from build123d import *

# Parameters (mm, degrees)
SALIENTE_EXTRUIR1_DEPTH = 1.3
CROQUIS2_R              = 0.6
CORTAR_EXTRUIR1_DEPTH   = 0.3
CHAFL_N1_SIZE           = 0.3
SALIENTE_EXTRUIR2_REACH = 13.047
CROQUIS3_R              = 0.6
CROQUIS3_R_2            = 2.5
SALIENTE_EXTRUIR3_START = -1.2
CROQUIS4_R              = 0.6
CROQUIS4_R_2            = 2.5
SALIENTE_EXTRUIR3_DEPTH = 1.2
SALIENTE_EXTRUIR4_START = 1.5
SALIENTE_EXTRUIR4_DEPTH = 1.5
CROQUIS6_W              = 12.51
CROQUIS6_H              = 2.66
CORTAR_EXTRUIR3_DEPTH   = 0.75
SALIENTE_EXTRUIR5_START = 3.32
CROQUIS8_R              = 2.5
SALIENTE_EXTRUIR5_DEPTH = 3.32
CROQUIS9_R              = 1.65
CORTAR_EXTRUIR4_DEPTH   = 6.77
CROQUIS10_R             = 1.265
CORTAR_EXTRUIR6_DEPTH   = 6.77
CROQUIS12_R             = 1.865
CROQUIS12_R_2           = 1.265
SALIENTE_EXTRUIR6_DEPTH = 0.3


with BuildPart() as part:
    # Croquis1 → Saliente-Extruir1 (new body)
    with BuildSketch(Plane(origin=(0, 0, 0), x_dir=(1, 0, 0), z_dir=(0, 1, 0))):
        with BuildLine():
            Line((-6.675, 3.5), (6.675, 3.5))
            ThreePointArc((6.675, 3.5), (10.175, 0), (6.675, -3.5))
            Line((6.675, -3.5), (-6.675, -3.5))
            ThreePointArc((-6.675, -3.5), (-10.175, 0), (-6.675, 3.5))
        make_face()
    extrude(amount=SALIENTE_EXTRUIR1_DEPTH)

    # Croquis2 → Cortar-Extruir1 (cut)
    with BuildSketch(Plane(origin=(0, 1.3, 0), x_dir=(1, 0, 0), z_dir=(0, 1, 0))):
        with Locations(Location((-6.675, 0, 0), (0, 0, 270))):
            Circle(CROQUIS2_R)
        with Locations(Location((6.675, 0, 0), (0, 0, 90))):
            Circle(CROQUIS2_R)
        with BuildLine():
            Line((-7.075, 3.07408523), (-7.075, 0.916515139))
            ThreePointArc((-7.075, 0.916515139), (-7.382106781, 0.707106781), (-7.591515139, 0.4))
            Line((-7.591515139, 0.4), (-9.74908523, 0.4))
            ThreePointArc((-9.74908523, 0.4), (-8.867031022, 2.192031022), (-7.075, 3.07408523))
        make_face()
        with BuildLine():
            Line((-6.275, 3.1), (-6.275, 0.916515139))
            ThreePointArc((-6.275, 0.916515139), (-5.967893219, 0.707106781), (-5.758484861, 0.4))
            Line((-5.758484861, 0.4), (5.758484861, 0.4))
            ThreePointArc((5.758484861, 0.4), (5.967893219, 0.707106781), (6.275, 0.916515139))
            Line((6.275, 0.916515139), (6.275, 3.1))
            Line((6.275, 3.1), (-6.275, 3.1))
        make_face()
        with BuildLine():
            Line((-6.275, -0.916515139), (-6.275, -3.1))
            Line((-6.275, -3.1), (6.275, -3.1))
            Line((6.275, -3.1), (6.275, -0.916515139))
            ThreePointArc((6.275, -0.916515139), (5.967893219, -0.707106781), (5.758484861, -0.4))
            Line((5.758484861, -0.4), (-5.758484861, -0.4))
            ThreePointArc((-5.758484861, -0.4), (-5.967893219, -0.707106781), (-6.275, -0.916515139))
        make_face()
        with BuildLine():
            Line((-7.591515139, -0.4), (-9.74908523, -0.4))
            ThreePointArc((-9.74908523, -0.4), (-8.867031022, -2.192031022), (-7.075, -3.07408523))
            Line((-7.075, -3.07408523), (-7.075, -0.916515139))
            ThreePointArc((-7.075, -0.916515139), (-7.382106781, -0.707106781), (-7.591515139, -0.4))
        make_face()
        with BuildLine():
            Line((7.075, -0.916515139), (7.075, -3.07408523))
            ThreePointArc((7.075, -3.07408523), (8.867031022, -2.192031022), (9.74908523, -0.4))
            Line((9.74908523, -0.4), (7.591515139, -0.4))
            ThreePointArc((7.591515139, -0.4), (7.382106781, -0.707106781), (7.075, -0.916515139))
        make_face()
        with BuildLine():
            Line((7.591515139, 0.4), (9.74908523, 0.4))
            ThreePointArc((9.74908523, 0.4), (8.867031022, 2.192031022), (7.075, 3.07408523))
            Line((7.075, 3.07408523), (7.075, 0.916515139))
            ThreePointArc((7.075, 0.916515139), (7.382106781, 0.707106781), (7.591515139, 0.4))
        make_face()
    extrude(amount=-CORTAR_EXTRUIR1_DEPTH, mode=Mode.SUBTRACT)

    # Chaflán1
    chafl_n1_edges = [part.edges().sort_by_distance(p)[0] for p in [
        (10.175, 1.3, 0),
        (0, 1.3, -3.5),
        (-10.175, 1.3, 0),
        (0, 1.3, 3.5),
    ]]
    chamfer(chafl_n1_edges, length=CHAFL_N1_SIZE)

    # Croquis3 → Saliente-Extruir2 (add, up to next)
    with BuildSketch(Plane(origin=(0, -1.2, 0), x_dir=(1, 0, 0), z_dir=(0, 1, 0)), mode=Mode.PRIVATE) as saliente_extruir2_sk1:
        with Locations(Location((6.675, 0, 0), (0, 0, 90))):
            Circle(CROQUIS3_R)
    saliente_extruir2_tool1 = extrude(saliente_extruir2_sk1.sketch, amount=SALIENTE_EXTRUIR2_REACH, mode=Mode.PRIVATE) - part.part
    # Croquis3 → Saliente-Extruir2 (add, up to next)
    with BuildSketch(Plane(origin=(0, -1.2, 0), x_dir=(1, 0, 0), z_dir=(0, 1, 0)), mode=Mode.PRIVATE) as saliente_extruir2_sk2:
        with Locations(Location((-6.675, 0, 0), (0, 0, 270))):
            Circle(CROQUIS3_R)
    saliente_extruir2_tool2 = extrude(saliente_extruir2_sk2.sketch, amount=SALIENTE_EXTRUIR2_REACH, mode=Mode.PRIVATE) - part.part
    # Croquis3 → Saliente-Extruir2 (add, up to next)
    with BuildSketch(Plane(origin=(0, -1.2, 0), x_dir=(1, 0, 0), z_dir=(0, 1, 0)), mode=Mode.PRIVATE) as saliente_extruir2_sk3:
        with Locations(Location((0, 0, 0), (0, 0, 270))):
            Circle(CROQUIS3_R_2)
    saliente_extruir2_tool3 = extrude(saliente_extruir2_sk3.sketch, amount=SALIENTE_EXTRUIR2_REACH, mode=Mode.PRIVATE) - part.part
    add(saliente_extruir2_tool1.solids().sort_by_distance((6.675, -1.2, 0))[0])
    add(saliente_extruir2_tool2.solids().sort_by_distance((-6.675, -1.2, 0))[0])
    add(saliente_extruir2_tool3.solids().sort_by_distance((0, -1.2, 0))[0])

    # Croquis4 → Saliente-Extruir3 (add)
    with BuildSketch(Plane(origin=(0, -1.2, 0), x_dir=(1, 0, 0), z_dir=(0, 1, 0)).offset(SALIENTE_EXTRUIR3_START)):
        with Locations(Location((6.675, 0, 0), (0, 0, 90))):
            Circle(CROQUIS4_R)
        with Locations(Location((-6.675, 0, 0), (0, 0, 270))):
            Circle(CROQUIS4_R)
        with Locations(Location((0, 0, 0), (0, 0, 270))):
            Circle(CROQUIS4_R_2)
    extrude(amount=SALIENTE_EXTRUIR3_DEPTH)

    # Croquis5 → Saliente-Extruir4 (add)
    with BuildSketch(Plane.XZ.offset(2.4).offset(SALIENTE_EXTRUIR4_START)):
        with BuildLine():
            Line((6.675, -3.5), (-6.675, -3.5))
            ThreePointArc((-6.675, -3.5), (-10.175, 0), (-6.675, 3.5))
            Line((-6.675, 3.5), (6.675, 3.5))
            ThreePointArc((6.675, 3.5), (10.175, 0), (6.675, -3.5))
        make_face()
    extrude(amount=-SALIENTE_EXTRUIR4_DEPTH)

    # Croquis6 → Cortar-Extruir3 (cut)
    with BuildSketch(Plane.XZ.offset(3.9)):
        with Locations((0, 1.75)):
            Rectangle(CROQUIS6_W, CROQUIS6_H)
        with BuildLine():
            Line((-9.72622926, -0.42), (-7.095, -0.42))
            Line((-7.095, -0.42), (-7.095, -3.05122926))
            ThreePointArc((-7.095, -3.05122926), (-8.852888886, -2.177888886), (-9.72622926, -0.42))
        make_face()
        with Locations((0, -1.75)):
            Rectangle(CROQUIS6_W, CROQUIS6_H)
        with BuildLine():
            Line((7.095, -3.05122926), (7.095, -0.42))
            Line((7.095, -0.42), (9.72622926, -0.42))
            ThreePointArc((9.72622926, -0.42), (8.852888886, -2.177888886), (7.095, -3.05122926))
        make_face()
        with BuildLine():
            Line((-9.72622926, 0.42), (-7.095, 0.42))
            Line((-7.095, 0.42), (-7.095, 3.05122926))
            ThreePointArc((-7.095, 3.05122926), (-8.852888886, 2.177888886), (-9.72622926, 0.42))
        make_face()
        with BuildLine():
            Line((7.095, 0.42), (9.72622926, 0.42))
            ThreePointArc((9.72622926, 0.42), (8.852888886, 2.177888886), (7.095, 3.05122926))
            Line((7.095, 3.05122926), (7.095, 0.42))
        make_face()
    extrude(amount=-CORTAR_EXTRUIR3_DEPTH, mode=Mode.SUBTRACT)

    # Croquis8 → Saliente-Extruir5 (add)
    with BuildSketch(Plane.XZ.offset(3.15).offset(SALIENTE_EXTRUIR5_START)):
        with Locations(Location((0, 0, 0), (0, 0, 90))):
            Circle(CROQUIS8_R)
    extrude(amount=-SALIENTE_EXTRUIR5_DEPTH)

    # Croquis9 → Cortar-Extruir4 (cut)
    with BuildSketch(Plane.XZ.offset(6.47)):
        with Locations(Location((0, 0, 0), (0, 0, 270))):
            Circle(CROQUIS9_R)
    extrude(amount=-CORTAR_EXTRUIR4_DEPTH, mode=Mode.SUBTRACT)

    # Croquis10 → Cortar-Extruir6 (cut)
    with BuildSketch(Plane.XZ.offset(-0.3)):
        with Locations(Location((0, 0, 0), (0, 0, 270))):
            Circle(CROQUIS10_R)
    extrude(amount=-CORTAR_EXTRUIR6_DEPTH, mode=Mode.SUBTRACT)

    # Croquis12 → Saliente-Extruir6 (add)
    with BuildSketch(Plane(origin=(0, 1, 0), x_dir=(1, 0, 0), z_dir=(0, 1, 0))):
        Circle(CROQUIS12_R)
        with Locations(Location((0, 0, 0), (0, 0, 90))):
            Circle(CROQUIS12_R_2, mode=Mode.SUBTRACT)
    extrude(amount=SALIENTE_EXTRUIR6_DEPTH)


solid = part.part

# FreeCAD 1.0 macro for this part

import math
import FreeCAD as App
import Part
import Sketcher
Q = App.Units.Quantity


def edges_at(feature, points):
    """Names of the edges that pass closest to the given points."""
    edges = feature.Shape.Edges
    near = lambda p: min(range(len(edges)), key=lambda i: edges[i].distToShape(Part.Vertex(*p))[0])
    return sorted({f"Edge{near(p) + 1}" for p in points})

doc = App.newDocument("Part")
body = doc.addObject("PartDesign::Body", "Body")

# Sketch on XZ plane
sketch1 = doc.addObject("Sketcher::SketchObject", "Sketch")
body.addObject(sketch1)
sketch1.AttachmentSupport = (doc.XZ_Plane, [""])
sketch1.MapMode = "FlatFace"
sketch1.addGeometry(Part.LineSegment(App.Vector(6.675, -3.5, 0), App.Vector(-6.675, -3.5, 0)), False)
sketch1.addGeometry(Part.ArcOfCircle(Part.Circle(App.Vector(-6.675, 0, 0), App.Vector(0, 0, 1), 3.5), math.radians(90), math.radians(270)), False)
sketch1.addGeometry(Part.LineSegment(App.Vector(-6.675, 3.5, 0), App.Vector(6.675, 3.5, 0)), False)
sketch1.addGeometry(Part.ArcOfCircle(Part.Circle(App.Vector(6.675, 0, 0), App.Vector(0, 0, 1), 3.5), math.radians(-90), math.radians(90)), False)
sketch1.addConstraint(Sketcher.Constraint("Tangent", 0, 2, 1, 2))
sketch1.addConstraint(Sketcher.Constraint("Tangent", 1, 1, 2, 1))
sketch1.addConstraint(Sketcher.Constraint("Tangent", 2, 2, 3, 2))
sketch1.addConstraint(Sketcher.Constraint("Tangent", 3, 1, 0, 1))
sketch1.addConstraint(Sketcher.Constraint("Horizontal", 0))
sketch1.addConstraint(Sketcher.Constraint("Horizontal", 2))
sketch1.addConstraint(Sketcher.Constraint("Symmetric", 1, 3, 3, 3, -1, 1))
sketch1.addConstraint(Sketcher.Constraint("Radius", 1, Q("3.5 mm")))
sketch1.addConstraint(Sketcher.Constraint("DistanceX", 0, 2, 0, 1, Q("13.35 mm")))
pad1 = doc.addObject("PartDesign::Pad", "Pad")
body.addObject(pad1)
pad1.Profile = sketch1
pad1.Length = 1.3
pad1.Reversed = True

# Sketch on XZ plane
sketch2 = doc.addObject("Sketcher::SketchObject", "Sketch001")
body.addObject(sketch2)
sketch2.AttachmentSupport = (doc.XZ_Plane, [""])
sketch2.MapMode = "FlatFace"
sketch2.AttachmentOffset = App.Placement(App.Vector(0, 0, -1.3), App.Rotation())
sketch2.addGeometry(Part.Circle(App.Vector(-6.675, 0, 0), App.Vector(0, 0, 1), 0.6), False)
sketch2.addGeometry(Part.Circle(App.Vector(6.675, 0, 0), App.Vector(0, 0, 1), 0.6), False)
sketch2.addGeometry(Part.LineSegment(App.Vector(-7.075, -0.916515, 0), App.Vector(-7.075, -3.074085, 0)), False)
sketch2.addGeometry(Part.ArcOfCircle(Part.Circle(App.Vector(-6.675, 0, 0), App.Vector(0, 0, 1), 3.1), math.radians(-172.586326), math.radians(-97.413674)), False)
sketch2.addGeometry(Part.LineSegment(App.Vector(-9.749085, -0.4, 0), App.Vector(-7.591515, -0.4, 0)), False)
sketch2.addGeometry(Part.ArcOfCircle(Part.Circle(App.Vector(-6.675, 0, 0), App.Vector(0, 0, 1), 1), math.radians(-156.421821), math.radians(-113.578179)), False)
sketch2.addGeometry(Part.LineSegment(App.Vector(-6.275, -3.1, 0), App.Vector(-6.275, -0.916515, 0)), False)
sketch2.addGeometry(Part.ArcOfCircle(Part.Circle(App.Vector(-6.675, 0, 0), App.Vector(0, 0, 1), 1), math.radians(-66.421821), math.radians(-23.578179)), False)
sketch2.addGeometry(Part.LineSegment(App.Vector(-5.758485, -0.4, 0), App.Vector(5.758485, -0.4, 0)), False)
sketch2.addGeometry(Part.ArcOfCircle(Part.Circle(App.Vector(6.675, 0, 0), App.Vector(0, 0, 1), 1), math.radians(-156.421821), math.radians(-113.578179)), False)
sketch2.addGeometry(Part.LineSegment(App.Vector(6.275, -0.916515, 0), App.Vector(6.275, -3.1, 0)), False)
sketch2.addGeometry(Part.LineSegment(App.Vector(6.275, -3.1, 0), App.Vector(-6.275, -3.1, 0)), False)
sketch2.addGeometry(Part.LineSegment(App.Vector(-6.275, 0.916515, 0), App.Vector(-6.275, 3.1, 0)), False)
sketch2.addGeometry(Part.LineSegment(App.Vector(-6.275, 3.1, 0), App.Vector(6.275, 3.1, 0)), False)
sketch2.addGeometry(Part.LineSegment(App.Vector(6.275, 3.1, 0), App.Vector(6.275, 0.916515, 0)), False)
sketch2.addGeometry(Part.ArcOfCircle(Part.Circle(App.Vector(6.675, 0, 0), App.Vector(0, 0, 1), 1), math.radians(113.578179), math.radians(156.421821)), False)
sketch2.addGeometry(Part.LineSegment(App.Vector(5.758485, 0.4, 0), App.Vector(-5.758485, 0.4, 0)), False)
sketch2.addGeometry(Part.ArcOfCircle(Part.Circle(App.Vector(-6.675, 0, 0), App.Vector(0, 0, 1), 1), math.radians(23.578179), math.radians(66.421821)), False)
sketch2.addGeometry(Part.LineSegment(App.Vector(-7.591515, 0.4, 0), App.Vector(-9.749085, 0.4, 0)), False)
sketch2.addGeometry(Part.ArcOfCircle(Part.Circle(App.Vector(-6.675, 0, 0), App.Vector(0, 0, 1), 3.1), math.radians(97.413674), math.radians(172.586326)), False)
sketch2.addGeometry(Part.LineSegment(App.Vector(-7.075, 3.074085, 0), App.Vector(-7.075, 0.916515, 0)), False)
sketch2.addGeometry(Part.ArcOfCircle(Part.Circle(App.Vector(-6.675, 0, 0), App.Vector(0, 0, 1), 1), math.radians(113.578179), math.radians(156.421821)), False)
sketch2.addGeometry(Part.LineSegment(App.Vector(7.075, 0.916515, 0), App.Vector(7.075, 3.074085, 0)), False)
sketch2.addGeometry(Part.ArcOfCircle(Part.Circle(App.Vector(6.675, 0, 0), App.Vector(0, 0, 1), 3.1), math.radians(7.413674), math.radians(82.586326)), False)
sketch2.addGeometry(Part.LineSegment(App.Vector(9.749085, 0.4, 0), App.Vector(7.591515, 0.4, 0)), False)
sketch2.addGeometry(Part.ArcOfCircle(Part.Circle(App.Vector(6.675, 0, 0), App.Vector(0, 0, 1), 1), math.radians(23.578179), math.radians(66.421821)), False)
sketch2.addGeometry(Part.LineSegment(App.Vector(7.591515, -0.4, 0), App.Vector(9.749085, -0.4, 0)), False)
sketch2.addGeometry(Part.ArcOfCircle(Part.Circle(App.Vector(6.675, 0, 0), App.Vector(0, 0, 1), 3.1), math.radians(-82.586326), math.radians(-7.413674)), False)
sketch2.addGeometry(Part.LineSegment(App.Vector(7.075, -3.074085, 0), App.Vector(7.075, -0.916515, 0)), False)
sketch2.addGeometry(Part.ArcOfCircle(Part.Circle(App.Vector(6.675, 0, 0), App.Vector(0, 0, 1), 1), math.radians(-66.421821), math.radians(-23.578179)), False)
sketch2.addConstraint(Sketcher.Constraint("Coincident", 2, 2, 3, 2))
sketch2.addConstraint(Sketcher.Constraint("Coincident", 3, 1, 4, 1))
sketch2.addConstraint(Sketcher.Constraint("Coincident", 4, 2, 5, 1))
sketch2.addConstraint(Sketcher.Constraint("Coincident", 5, 2, 2, 1))
sketch2.addConstraint(Sketcher.Constraint("Coincident", 6, 2, 7, 1))
sketch2.addConstraint(Sketcher.Constraint("Coincident", 7, 2, 8, 1))
sketch2.addConstraint(Sketcher.Constraint("Coincident", 8, 2, 9, 1))
sketch2.addConstraint(Sketcher.Constraint("Coincident", 9, 2, 10, 1))
sketch2.addConstraint(Sketcher.Constraint("Coincident", 10, 2, 11, 1))
sketch2.addConstraint(Sketcher.Constraint("Coincident", 11, 2, 6, 1))
sketch2.addConstraint(Sketcher.Constraint("Coincident", 12, 2, 13, 1))
sketch2.addConstraint(Sketcher.Constraint("Coincident", 13, 2, 14, 1))
sketch2.addConstraint(Sketcher.Constraint("Coincident", 14, 2, 15, 1))
sketch2.addConstraint(Sketcher.Constraint("Coincident", 15, 2, 16, 1))
sketch2.addConstraint(Sketcher.Constraint("Coincident", 16, 2, 17, 1))
sketch2.addConstraint(Sketcher.Constraint("Coincident", 17, 2, 12, 1))
sketch2.addConstraint(Sketcher.Constraint("Coincident", 18, 2, 19, 2))
sketch2.addConstraint(Sketcher.Constraint("Coincident", 19, 1, 20, 1))
sketch2.addConstraint(Sketcher.Constraint("Coincident", 20, 2, 21, 1))
sketch2.addConstraint(Sketcher.Constraint("Coincident", 21, 2, 18, 1))
sketch2.addConstraint(Sketcher.Constraint("Coincident", 22, 2, 23, 2))
sketch2.addConstraint(Sketcher.Constraint("Coincident", 23, 1, 24, 1))
sketch2.addConstraint(Sketcher.Constraint("Coincident", 24, 2, 25, 1))
sketch2.addConstraint(Sketcher.Constraint("Coincident", 25, 2, 22, 1))
sketch2.addConstraint(Sketcher.Constraint("Coincident", 26, 2, 27, 2))
sketch2.addConstraint(Sketcher.Constraint("Coincident", 27, 1, 28, 1))
sketch2.addConstraint(Sketcher.Constraint("Coincident", 28, 2, 29, 1))
sketch2.addConstraint(Sketcher.Constraint("Coincident", 29, 2, 26, 1))
sketch2.addConstraint(Sketcher.Constraint("Vertical", 2))
sketch2.addConstraint(Sketcher.Constraint("Horizontal", 4))
sketch2.addConstraint(Sketcher.Constraint("Vertical", 6))
sketch2.addConstraint(Sketcher.Constraint("Horizontal", 8))
sketch2.addConstraint(Sketcher.Constraint("Vertical", 10))
sketch2.addConstraint(Sketcher.Constraint("Horizontal", 11))
sketch2.addConstraint(Sketcher.Constraint("Vertical", 12))
sketch2.addConstraint(Sketcher.Constraint("Horizontal", 13))
sketch2.addConstraint(Sketcher.Constraint("Vertical", 14))
sketch2.addConstraint(Sketcher.Constraint("Horizontal", 16))
sketch2.addConstraint(Sketcher.Constraint("Horizontal", 18))
sketch2.addConstraint(Sketcher.Constraint("Vertical", 20))
sketch2.addConstraint(Sketcher.Constraint("Vertical", 22))
sketch2.addConstraint(Sketcher.Constraint("Horizontal", 24))
sketch2.addConstraint(Sketcher.Constraint("Horizontal", 26))
sketch2.addConstraint(Sketcher.Constraint("Vertical", 28))
sketch2.addConstraint(Sketcher.Constraint("Coincident", 3, 3, 0, 3))
sketch2.addConstraint(Sketcher.Constraint("Coincident", 5, 3, 0, 3))
sketch2.addConstraint(Sketcher.Constraint("Coincident", 7, 3, 0, 3))
sketch2.addConstraint(Sketcher.Constraint("Coincident", 9, 3, 1, 3))
sketch2.addConstraint(Sketcher.Constraint("Coincident", 15, 3, 1, 3))
sketch2.addConstraint(Sketcher.Constraint("Coincident", 17, 3, 0, 3))
sketch2.addConstraint(Sketcher.Constraint("Coincident", 19, 3, 0, 3))
sketch2.addConstraint(Sketcher.Constraint("Coincident", 21, 3, 0, 3))
sketch2.addConstraint(Sketcher.Constraint("Coincident", 23, 3, 1, 3))
sketch2.addConstraint(Sketcher.Constraint("Coincident", 25, 3, 1, 3))
sketch2.addConstraint(Sketcher.Constraint("Coincident", 27, 3, 1, 3))
sketch2.addConstraint(Sketcher.Constraint("Coincident", 29, 3, 1, 3))
sketch2.addConstraint(Sketcher.Constraint("Equal", 0, 1))
sketch2.addConstraint(Sketcher.Constraint("Equal", 5, 7))
sketch2.addConstraint(Sketcher.Constraint("Equal", 7, 9))
sketch2.addConstraint(Sketcher.Constraint("Equal", 9, 15))
sketch2.addConstraint(Sketcher.Constraint("Equal", 15, 17))
sketch2.addConstraint(Sketcher.Constraint("Equal", 3, 19))
sketch2.addConstraint(Sketcher.Constraint("Equal", 17, 21))
sketch2.addConstraint(Sketcher.Constraint("Equal", 19, 23))
sketch2.addConstraint(Sketcher.Constraint("Equal", 21, 25))
sketch2.addConstraint(Sketcher.Constraint("Equal", 23, 27))
sketch2.addConstraint(Sketcher.Constraint("Equal", 25, 29))
sketch2.addConstraint(Sketcher.Constraint("Symmetric", 0, 3, 1, 3, -1, 1))
sketch2.addConstraint(Sketcher.Constraint("Symmetric", 10, 2, 12, 2, -1, 1))
sketch2.addConstraint(Sketcher.Constraint("Symmetric", 6, 2, 9, 2, -2))
sketch2.addConstraint(Sketcher.Constraint("Horizontal", 5, 2, 6, 2))
sketch2.addConstraint(Sketcher.Constraint("Horizontal", 4, 2, 7, 2))
sketch2.addConstraint(Sketcher.Constraint("Horizontal", 14, 2, 17, 2))
sketch2.addConstraint(Sketcher.Constraint("Horizontal", 16, 2, 18, 2))
sketch2.addConstraint(Sketcher.Constraint("Horizontal", 17, 2, 20, 2))
sketch2.addConstraint(Sketcher.Constraint("Horizontal", 19, 1, 22, 2))
sketch2.addConstraint(Sketcher.Constraint("Horizontal", 21, 2, 23, 1))
sketch2.addConstraint(Sketcher.Constraint("Horizontal", 8, 2, 26, 2))
sketch2.addConstraint(Sketcher.Constraint("Horizontal", 2, 2, 27, 1))
sketch2.addConstraint(Sketcher.Constraint("Vertical", 8, 2, 15, 2))
sketch2.addConstraint(Sketcher.Constraint("Equal", 26, 2))
sketch2.addConstraint(Sketcher.Constraint("Radius", 5, Q("1 mm")))
sketch2.addConstraint(Sketcher.Constraint("Diameter", 0, Q("1.2 mm")))
sketch2.addConstraint(Sketcher.Constraint("Radius", 3, Q("3.1 mm")))
sketch2.addConstraint(Sketcher.Constraint("DistanceX", 11, 2, 11, 1, Q("12.55 mm")))
sketch2.addConstraint(Sketcher.Constraint("DistanceY", 3, 1, -1, 1, Q("0.4 mm")))
sketch2.addConstraint(Sketcher.Constraint("DistanceY", 10, 2, -1, 1, Q("3.1 mm")))
pocket1 = doc.addObject("PartDesign::Pocket", "Pocket")
body.addObject(pocket1)
pocket1.Profile = sketch2
pocket1.Length = 0.3
pocket1.Reversed = True
doc.recompute()

chamfer = doc.addObject("PartDesign::Chamfer", "Chamfer")
body.addObject(chamfer)
chamfer.Base = (pocket1, edges_at(pocket1, [
    (10.175, 1.3, 0),
    (0, 1.3, -3.5),
    (-10.175, 1.3, 0),
    (0, 1.3, 3.5),
]))
chamfer.Size = 0.3

# Sketch on XZ plane
sketch3 = doc.addObject("Sketcher::SketchObject", "Sketch002")
body.addObject(sketch3)
sketch3.AttachmentSupport = (doc.XZ_Plane, [""])
sketch3.MapMode = "FlatFace"
sketch3.AttachmentOffset = App.Placement(App.Vector(0, 0, 1.2), App.Rotation())
sketch3.addGeometry(Part.Circle(App.Vector(6.675, 0, 0), App.Vector(0, 0, 1), 0.6), False)
sketch3.addConstraint(Sketcher.Constraint("PointOnObject", 0, 3, -1))
sketch3.addConstraint(Sketcher.Constraint("Diameter", 0, Q("1.2 mm")))
sketch3.addConstraint(Sketcher.Constraint("DistanceX", -1, 1, 0, 3, Q("6.675 mm")))
pad2 = doc.addObject("PartDesign::Pad", "Pad001")
body.addObject(pad2)
pad2.Profile = sketch3
pad2.Type = "UpToFirst"
pad2.Reversed = True

# Sketch on XZ plane
sketch4 = doc.addObject("Sketcher::SketchObject", "Sketch003")
body.addObject(sketch4)
sketch4.AttachmentSupport = (doc.XZ_Plane, [""])
sketch4.MapMode = "FlatFace"
sketch4.AttachmentOffset = App.Placement(App.Vector(0, 0, 1.2), App.Rotation())
sketch4.addGeometry(Part.Circle(App.Vector(-6.675, 0, 0), App.Vector(0, 0, 1), 0.6), False)
sketch4.addConstraint(Sketcher.Constraint("PointOnObject", 0, 3, -1))
sketch4.addConstraint(Sketcher.Constraint("Diameter", 0, Q("1.2 mm")))
sketch4.addConstraint(Sketcher.Constraint("DistanceX", 0, 3, -1, 1, Q("6.675 mm")))
pad3 = doc.addObject("PartDesign::Pad", "Pad002")
body.addObject(pad3)
pad3.Profile = sketch4
pad3.Type = "UpToFirst"
pad3.Reversed = True

# Sketch on XZ plane
sketch5 = doc.addObject("Sketcher::SketchObject", "Sketch004")
body.addObject(sketch5)
sketch5.AttachmentSupport = (doc.XZ_Plane, [""])
sketch5.MapMode = "FlatFace"
sketch5.AttachmentOffset = App.Placement(App.Vector(0, 0, 1.2), App.Rotation())
sketch5.addGeometry(Part.Circle(App.Vector(0, 0, 0), App.Vector(0, 0, 1), 2.5), False)
sketch5.addConstraint(Sketcher.Constraint("Coincident", 0, 3, -1, 1))
sketch5.addConstraint(Sketcher.Constraint("Diameter", 0, Q("5 mm")))
pad4 = doc.addObject("PartDesign::Pad", "Pad003")
body.addObject(pad4)
pad4.Profile = sketch5
pad4.Type = "UpToFirst"
pad4.Reversed = True

# Sketch on XZ plane
sketch6 = doc.addObject("Sketcher::SketchObject", "Sketch005")
body.addObject(sketch6)
sketch6.AttachmentSupport = (doc.XZ_Plane, [""])
sketch6.MapMode = "FlatFace"
sketch6.AttachmentOffset = App.Placement(App.Vector(0, 0, 2.4), App.Rotation())
sketch6.addGeometry(Part.Circle(App.Vector(6.675, 0, 0), App.Vector(0, 0, 1), 0.6), False)
sketch6.addGeometry(Part.Circle(App.Vector(-6.675, 0, 0), App.Vector(0, 0, 1), 0.6), False)
sketch6.addGeometry(Part.Circle(App.Vector(0, 0, 0), App.Vector(0, 0, 1), 2.5), False)
sketch6.addConstraint(Sketcher.Constraint("Coincident", 2, 3, -1, 1))
sketch6.addConstraint(Sketcher.Constraint("Equal", 0, 1))
sketch6.addConstraint(Sketcher.Constraint("Symmetric", 0, 3, 1, 3, -1, 1))
sketch6.addConstraint(Sketcher.Constraint("PointOnObject", 0, 3, -1))
sketch6.addConstraint(Sketcher.Constraint("Diameter", 2, Q("5 mm")))
sketch6.addConstraint(Sketcher.Constraint("Diameter", 0, Q("1.2 mm")))
sketch6.addConstraint(Sketcher.Constraint("DistanceX", 1, 3, 0, 3, Q("13.35 mm")))
pad5 = doc.addObject("PartDesign::Pad", "Pad004")
body.addObject(pad5)
pad5.Profile = sketch6
pad5.Length = 1.2
pad5.Reversed = True

# Sketch on XZ plane
sketch7 = doc.addObject("Sketcher::SketchObject", "Sketch006")
body.addObject(sketch7)
sketch7.AttachmentSupport = (doc.XZ_Plane, [""])
sketch7.MapMode = "FlatFace"
sketch7.AttachmentOffset = App.Placement(App.Vector(0, 0, 3.9), App.Rotation())
sketch7.addGeometry(Part.LineSegment(App.Vector(-6.675, -3.5, 0), App.Vector(6.675, -3.5, 0)), False)
sketch7.addGeometry(Part.ArcOfCircle(Part.Circle(App.Vector(6.675, 0, 0), App.Vector(0, 0, 1), 3.5), math.radians(-90), math.radians(90)), False)
sketch7.addGeometry(Part.LineSegment(App.Vector(6.675, 3.5, 0), App.Vector(-6.675, 3.5, 0)), False)
sketch7.addGeometry(Part.ArcOfCircle(Part.Circle(App.Vector(-6.675, 0, 0), App.Vector(0, 0, 1), 3.5), math.radians(90), math.radians(270)), False)
sketch7.addConstraint(Sketcher.Constraint("Tangent", 0, 2, 1, 1))
sketch7.addConstraint(Sketcher.Constraint("Tangent", 1, 2, 2, 1))
sketch7.addConstraint(Sketcher.Constraint("Tangent", 2, 2, 3, 1))
sketch7.addConstraint(Sketcher.Constraint("Tangent", 3, 2, 0, 1))
sketch7.addConstraint(Sketcher.Constraint("Horizontal", 0))
sketch7.addConstraint(Sketcher.Constraint("Horizontal", 2))
sketch7.addConstraint(Sketcher.Constraint("Symmetric", 1, 3, 3, 3, -1, 1))
sketch7.addConstraint(Sketcher.Constraint("Radius", 1, Q("3.5 mm")))
sketch7.addConstraint(Sketcher.Constraint("DistanceX", 0, 1, 0, 2, Q("13.35 mm")))
pad6 = doc.addObject("PartDesign::Pad", "Pad005")
body.addObject(pad6)
pad6.Profile = sketch7
pad6.Length = 1.5
pad6.Reversed = True

# Sketch on XZ plane
sketch8 = doc.addObject("Sketcher::SketchObject", "Sketch007")
body.addObject(sketch8)
sketch8.AttachmentSupport = (doc.XZ_Plane, [""])
sketch8.MapMode = "FlatFace"
sketch8.AttachmentOffset = App.Placement(App.Vector(0, 0, 3.9), App.Rotation())
sketch8.addGeometry(Part.LineSegment(App.Vector(-6.255, 3.08, 0), App.Vector(-6.255, 0.42, 0)), False)
sketch8.addGeometry(Part.LineSegment(App.Vector(-6.255, 0.42, 0), App.Vector(6.255, 0.42, 0)), False)
sketch8.addGeometry(Part.LineSegment(App.Vector(6.255, 0.42, 0), App.Vector(6.255, 3.08, 0)), False)
sketch8.addGeometry(Part.LineSegment(App.Vector(6.255, 3.08, 0), App.Vector(-6.255, 3.08, 0)), False)
sketch8.addGeometry(Part.LineSegment(App.Vector(-7.095, -0.42, 0), App.Vector(-9.726229, -0.42, 0)), False)
sketch8.addGeometry(Part.ArcOfCircle(Part.Circle(App.Vector(-6.675, 0, 0), App.Vector(0, 0, 1), 3.08), math.radians(-172.16252), math.radians(-97.83748)), False)
sketch8.addGeometry(Part.LineSegment(App.Vector(-7.095, -3.051229, 0), App.Vector(-7.095, -0.42, 0)), False)
sketch8.addGeometry(Part.LineSegment(App.Vector(-6.255, -0.42, 0), App.Vector(-6.255, -3.08, 0)), False)
sketch8.addGeometry(Part.LineSegment(App.Vector(-6.255, -3.08, 0), App.Vector(6.255, -3.08, 0)), False)
sketch8.addGeometry(Part.LineSegment(App.Vector(6.255, -3.08, 0), App.Vector(6.255, -0.42, 0)), False)
sketch8.addGeometry(Part.LineSegment(App.Vector(6.255, -0.42, 0), App.Vector(-6.255, -0.42, 0)), False)
sketch8.addGeometry(Part.LineSegment(App.Vector(7.095, -0.42, 0), App.Vector(7.095, -3.051229, 0)), False)
sketch8.addGeometry(Part.ArcOfCircle(Part.Circle(App.Vector(6.675, 0, 0), App.Vector(0, 0, 1), 3.08), math.radians(-82.16252), math.radians(-7.83748)), False)
sketch8.addGeometry(Part.LineSegment(App.Vector(9.726229, -0.42, 0), App.Vector(7.095, -0.42, 0)), False)
sketch8.addGeometry(Part.LineSegment(App.Vector(-9.726229, 0.42, 0), App.Vector(-7.095, 0.42, 0)), False)
sketch8.addGeometry(Part.LineSegment(App.Vector(-7.095, 0.42, 0), App.Vector(-7.095, 3.051229, 0)), False)
sketch8.addGeometry(Part.ArcOfCircle(Part.Circle(App.Vector(-6.675, 0, 0), App.Vector(0, 0, 1), 3.08), math.radians(97.83748), math.radians(172.16252)), False)
sketch8.addGeometry(Part.LineSegment(App.Vector(7.095, 0.42, 0), App.Vector(9.726229, 0.42, 0)), False)
sketch8.addGeometry(Part.ArcOfCircle(Part.Circle(App.Vector(6.675, 0, 0), App.Vector(0, 0, 1), 3.08), math.radians(7.83748), math.radians(82.16252)), False)
sketch8.addGeometry(Part.LineSegment(App.Vector(7.095, 3.051229, 0), App.Vector(7.095, 0.42, 0)), False)
sketch8.addConstraint(Sketcher.Constraint("Coincident", 0, 2, 1, 1))
sketch8.addConstraint(Sketcher.Constraint("Coincident", 1, 2, 2, 1))
sketch8.addConstraint(Sketcher.Constraint("Coincident", 2, 2, 3, 1))
sketch8.addConstraint(Sketcher.Constraint("Coincident", 3, 2, 0, 1))
sketch8.addConstraint(Sketcher.Constraint("Coincident", 4, 2, 5, 1))
sketch8.addConstraint(Sketcher.Constraint("Coincident", 5, 2, 6, 1))
sketch8.addConstraint(Sketcher.Constraint("Coincident", 6, 2, 4, 1))
sketch8.addConstraint(Sketcher.Constraint("Coincident", 7, 2, 8, 1))
sketch8.addConstraint(Sketcher.Constraint("Coincident", 8, 2, 9, 1))
sketch8.addConstraint(Sketcher.Constraint("Coincident", 9, 2, 10, 1))
sketch8.addConstraint(Sketcher.Constraint("Coincident", 10, 2, 7, 1))
sketch8.addConstraint(Sketcher.Constraint("Coincident", 11, 2, 12, 1))
sketch8.addConstraint(Sketcher.Constraint("Coincident", 12, 2, 13, 1))
sketch8.addConstraint(Sketcher.Constraint("Coincident", 13, 2, 11, 1))
sketch8.addConstraint(Sketcher.Constraint("Coincident", 14, 2, 15, 1))
sketch8.addConstraint(Sketcher.Constraint("Coincident", 15, 2, 16, 1))
sketch8.addConstraint(Sketcher.Constraint("Coincident", 16, 2, 14, 1))
sketch8.addConstraint(Sketcher.Constraint("Coincident", 17, 2, 18, 1))
sketch8.addConstraint(Sketcher.Constraint("Coincident", 18, 2, 19, 1))
sketch8.addConstraint(Sketcher.Constraint("Coincident", 19, 2, 17, 1))
sketch8.addConstraint(Sketcher.Constraint("Vertical", 0))
sketch8.addConstraint(Sketcher.Constraint("Horizontal", 1))
sketch8.addConstraint(Sketcher.Constraint("Vertical", 2))
sketch8.addConstraint(Sketcher.Constraint("Horizontal", 3))
sketch8.addConstraint(Sketcher.Constraint("Horizontal", 4))
sketch8.addConstraint(Sketcher.Constraint("Vertical", 6))
sketch8.addConstraint(Sketcher.Constraint("Vertical", 7))
sketch8.addConstraint(Sketcher.Constraint("Horizontal", 8))
sketch8.addConstraint(Sketcher.Constraint("Vertical", 9))
sketch8.addConstraint(Sketcher.Constraint("Horizontal", 10))
sketch8.addConstraint(Sketcher.Constraint("Vertical", 11))
sketch8.addConstraint(Sketcher.Constraint("Horizontal", 13))
sketch8.addConstraint(Sketcher.Constraint("Horizontal", 14))
sketch8.addConstraint(Sketcher.Constraint("Vertical", 15))
sketch8.addConstraint(Sketcher.Constraint("Horizontal", 17))
sketch8.addConstraint(Sketcher.Constraint("Vertical", 19))
sketch8.addConstraint(Sketcher.Constraint("Coincident", 16, 3, 5, 3))
sketch8.addConstraint(Sketcher.Constraint("Coincident", 18, 3, 12, 3))
sketch8.addConstraint(Sketcher.Constraint("Equal", 5, 12))
sketch8.addConstraint(Sketcher.Constraint("Equal", 12, 16))
sketch8.addConstraint(Sketcher.Constraint("Equal", 16, 18))
sketch8.addConstraint(Sketcher.Constraint("Symmetric", 5, 3, 12, 3, -1, 1))
sketch8.addConstraint(Sketcher.Constraint("Symmetric", 2, 2, 7, 2, -1, 1))
sketch8.addConstraint(Sketcher.Constraint("Symmetric", 0, 2, 9, 2, -1, 1))
sketch8.addConstraint(Sketcher.Constraint("Symmetric", 13, 2, 14, 2, -1, 1))
sketch8.addConstraint(Sketcher.Constraint("Symmetric", 6, 2, 19, 2, -1, 1))
sketch8.addConstraint(Sketcher.Constraint("Symmetric", 5, 2, 11, 2, -2))
sketch8.addConstraint(Sketcher.Constraint("Horizontal", 6, 2, 9, 2))
sketch8.addConstraint(Sketcher.Constraint("Horizontal", 10, 2, 12, 2))
sketch8.addConstraint(Sketcher.Constraint("Vertical", 3, 2, 7, 2))
sketch8.addConstraint(Sketcher.Constraint("Equal", 17, 6))
sketch8.addConstraint(Sketcher.Constraint("Radius", 5, Q("3.08 mm")))
sketch8.addConstraint(Sketcher.Constraint("DistanceX", 1, 1, 1, 2, Q("12.51 mm")))
sketch8.addConstraint(Sketcher.Constraint("DistanceY", 0, 2, 0, 1, Q("2.66 mm")))
sketch8.addConstraint(Sketcher.Constraint("DistanceY", 4, 2, 3, 2, Q("3.5 mm")))
sketch8.addConstraint(Sketcher.Constraint("DistanceX", 5, 3, 12, 3, Q("13.35 mm")))
pocket2 = doc.addObject("PartDesign::Pocket", "Pocket001")
body.addObject(pocket2)
pocket2.Profile = sketch8
pocket2.Length = 0.75

# Sketch on XZ plane
sketch9 = doc.addObject("Sketcher::SketchObject", "Sketch008")
body.addObject(sketch9)
sketch9.AttachmentSupport = (doc.XZ_Plane, [""])
sketch9.MapMode = "FlatFace"
sketch9.AttachmentOffset = App.Placement(App.Vector(0, 0, 6.47), App.Rotation())
sketch9.addGeometry(Part.Circle(App.Vector(0, 0, 0), App.Vector(0, 0, 1), 2.5), False)
sketch9.addConstraint(Sketcher.Constraint("Coincident", 0, 3, -1, 1))
sketch9.addConstraint(Sketcher.Constraint("Diameter", 0, Q("5 mm")))
pad7 = doc.addObject("PartDesign::Pad", "Pad006")
body.addObject(pad7)
pad7.Profile = sketch9
pad7.Length = 3.32
pad7.Reversed = True

# Sketch on XZ plane
sketch10 = doc.addObject("Sketcher::SketchObject", "Sketch009")
body.addObject(sketch10)
sketch10.AttachmentSupport = (doc.XZ_Plane, [""])
sketch10.MapMode = "FlatFace"
sketch10.AttachmentOffset = App.Placement(App.Vector(0, 0, 6.47), App.Rotation())
sketch10.addGeometry(Part.Circle(App.Vector(0, 0, 0), App.Vector(0, 0, 1), 1.65), False)
sketch10.addConstraint(Sketcher.Constraint("Coincident", 0, 3, -1, 1))
sketch10.addConstraint(Sketcher.Constraint("Diameter", 0, Q("3.3 mm")))
pocket3 = doc.addObject("PartDesign::Pocket", "Pocket002")
body.addObject(pocket3)
pocket3.Profile = sketch10
pocket3.Length = 6.77

# Sketch on XZ plane
sketch11 = doc.addObject("Sketcher::SketchObject", "Sketch010")
body.addObject(sketch11)
sketch11.AttachmentSupport = (doc.XZ_Plane, [""])
sketch11.MapMode = "FlatFace"
sketch11.AttachmentOffset = App.Placement(App.Vector(0, 0, -0.3), App.Rotation())
sketch11.addGeometry(Part.Circle(App.Vector(0, 0, 0), App.Vector(0, 0, 1), 1.265), False)
sketch11.addConstraint(Sketcher.Constraint("Coincident", 0, 3, -1, 1))
sketch11.addConstraint(Sketcher.Constraint("Diameter", 0, Q("2.53 mm")))
pocket4 = doc.addObject("PartDesign::Pocket", "Pocket003")
body.addObject(pocket4)
pocket4.Profile = sketch11
pocket4.Length = 6.77

# Sketch on XZ plane
sketch12 = doc.addObject("Sketcher::SketchObject", "Sketch011")
body.addObject(sketch12)
sketch12.AttachmentSupport = (doc.XZ_Plane, [""])
sketch12.MapMode = "FlatFace"
sketch12.AttachmentOffset = App.Placement(App.Vector(0, 0, -1), App.Rotation())
sketch12.addGeometry(Part.Circle(App.Vector(0, 0, 0), App.Vector(0, 0, 1), 1.865), False)
sketch12.addGeometry(Part.Circle(App.Vector(0, 0, 0), App.Vector(0, 0, 1), 1.265), False)
sketch12.addConstraint(Sketcher.Constraint("Coincident", 0, 3, -1, 1))
sketch12.addConstraint(Sketcher.Constraint("Coincident", 1, 3, -1, 1))
sketch12.addConstraint(Sketcher.Constraint("Diameter", 0, Q("3.73 mm")))
sketch12.addConstraint(Sketcher.Constraint("Diameter", 1, Q("2.53 mm")))
pad8 = doc.addObject("PartDesign::Pad", "Pad007")
body.addObject(pad8)
pad8.Profile = sketch12
pad8.Length = 0.3
pad8.Reversed = True

doc.recompute()
